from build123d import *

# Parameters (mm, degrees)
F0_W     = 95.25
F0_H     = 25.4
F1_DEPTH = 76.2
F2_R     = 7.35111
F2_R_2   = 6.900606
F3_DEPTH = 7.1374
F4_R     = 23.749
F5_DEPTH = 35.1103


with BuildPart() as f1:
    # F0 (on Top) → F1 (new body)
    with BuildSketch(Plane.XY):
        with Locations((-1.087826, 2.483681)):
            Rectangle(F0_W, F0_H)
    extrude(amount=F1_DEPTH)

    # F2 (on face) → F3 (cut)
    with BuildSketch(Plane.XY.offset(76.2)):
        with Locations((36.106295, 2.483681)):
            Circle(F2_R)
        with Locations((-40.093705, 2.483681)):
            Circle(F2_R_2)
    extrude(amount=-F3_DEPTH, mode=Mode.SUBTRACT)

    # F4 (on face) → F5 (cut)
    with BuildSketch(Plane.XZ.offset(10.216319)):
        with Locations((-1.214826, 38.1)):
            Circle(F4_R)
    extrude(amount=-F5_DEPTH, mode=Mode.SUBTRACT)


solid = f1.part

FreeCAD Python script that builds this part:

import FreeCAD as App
import Part
import Sketcher
Q = App.Units.Quantity


def add_polygon(sketch, points):
    """Adds a closed chain of lines whose ends are joined by coincident constraints."""
    first, n = sketch.GeometryCount, len(points)
    for a, b in zip(points, points[1:] + points[:1]):
        sketch.addGeometry(Part.LineSegment(App.Vector(*a, 0), App.Vector(*b, 0)), False)
    for i in range(n):
        sketch.addConstraint(Sketcher.Constraint("Coincident", first + i, 2, first + (i + 1) % n, 1))

doc = App.newDocument("Part")
params = doc.addObject("Spreadsheet::Sheet", "Params")
for row, (alias, value) in enumerate([
    ("sketch1_height", "1 in"),
    ("sketch1_width", "3.75 in"),
    ("pad1_length", "3 in"),
    ("pocket1_length", "0.281 in"),
    ("sketch3_diameter", "1.87 in"),
    ("pocket2_length", "35.1103 mm"),
], start=1):
    params.set(f"A{row}", alias)
    params.set(f"B{row}", "=" + value)
    params.setAlias(f"B{row}", alias)

body = doc.addObject("PartDesign::Body", "Body")

sketch1 = body.newObject("Sketcher::SketchObject", "Sketch")
sketch1.AttachmentSupport = (doc.getObject("XY_Plane"), [""])
sketch1.MapMode = "FlatFace"
add_polygon(sketch1, [(-49, 15), (-49, -10), (47, -10), (47, 15)])
sketch1.addConstraint([
    Sketcher.Constraint("Vertical", 0),
    Sketcher.Constraint("Horizontal", 1),
    Sketcher.Constraint("Vertical", 2),
    Sketcher.Constraint("Horizontal", 3),
    Sketcher.Constraint("DistanceY", 0, 2, 0, 1, Q("1 in")),
    Sketcher.Constraint("DistanceX", 1, 1, 1, 2, Q("3.75 in")),
    Sketcher.Constraint("DistanceY", 0, 2, -1, 1, Q("10.216319 mm")),
    Sketcher.Constraint("DistanceX", 0, 2, -1, 1, Q("48.712826 mm")),
])
sketch1.setExpression("Constraints[8]", "Params.sketch1_height")
sketch1.setExpression("Constraints[9]", "Params.sketch1_width")
pad1 = body.newObject("PartDesign::Pad", "Pad")
pad1.Profile = sketch1
pad1.setExpression("Length", "Params.pad1_length")

sketch2 = body.newObject("Sketcher::SketchObject", "Sketch001")
sketch2.AttachmentSupport = (doc.getObject("XY_Plane"), [""])
sketch2.MapMode = "FlatFace"
sketch2.AttachmentOffset = App.Placement(App.Vector(0, 0, 3 * 25.4), App.Rotation())
sketch2.addGeometry([
    Part.Circle(App.Vector(36, 2, 0), App.Vector(0, 0, 1), 7),
    Part.Circle(App.Vector(-40, 2, 0), App.Vector(0, 0, 1), 7),
], False)
sketch2.addConstraint([
    Sketcher.Constraint("Horizontal", 0, 3, 1, 3),
    Sketcher.Constraint("DistanceX", 1, 3, 0, 3, Q("3 in")),
    Sketcher.Constraint("Diameter", 0, Q("14.70222 mm")),
    Sketcher.Constraint("Diameter", 1, Q("13.801212 mm")),
    Sketcher.Constraint("DistanceY", -1, 1, 0, 3, Q("2.483681 mm")),
    Sketcher.Constraint("DistanceX", -1, 1, 0, 3, Q("36.106295 mm")),
])
pocket1 = body.newObject("PartDesign::Pocket", "Pocket")
pocket1.Profile = sketch2
pocket1.setExpression("Length", "Params.pocket1_length")

sketch3 = body.newObject("Sketcher::SketchObject", "Sketch002")
sketch3.AttachmentSupport = (doc.getObject("XZ_Plane"), [""])
sketch3.MapMode = "FlatFace"
sketch3.AttachmentOffset = App.Placement(App.Vector(0, 0, 10.216319), App.Rotation())
sketch3.addGeometry(Part.Circle(App.Vector(-1, 38, 0), App.Vector(0, 0, 1), 24), False)
sketch3.addConstraint([
    Sketcher.Constraint("Diameter", 0, Q("1.87 in")),
    Sketcher.Constraint("DistanceY", -1, 1, 0, 3, Q("1.5 in")),
    Sketcher.Constraint("DistanceX", 0, 3, -1, 1, Q("1.214826 mm")),
])
sketch3.setExpression("Constraints[0]", "Params.sketch3_diameter")
pocket2 = body.newObject("PartDesign::Pocket", "Pocket001")
pocket2.Profile = sketch3
pocket2.setExpression("Length", "Params.pocket2_length")

doc.recompute()
